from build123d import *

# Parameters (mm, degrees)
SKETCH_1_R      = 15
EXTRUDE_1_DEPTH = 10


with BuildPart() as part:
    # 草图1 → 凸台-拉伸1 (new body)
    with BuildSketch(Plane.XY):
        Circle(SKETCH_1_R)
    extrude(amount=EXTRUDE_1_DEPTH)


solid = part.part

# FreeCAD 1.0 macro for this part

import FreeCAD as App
import Part
import Sketcher
from FreeCAD import Vector

doc = App.newDocument("Part")
body = doc.addObject("PartDesign::Body", "Body")

# Sketch on XY plane
sketch1 = doc.addObject("Sketcher::SketchObject", "Sketch")
body.addObject(sketch1)
sketch1.AttachmentSupport = (doc.XY_Plane, [""])
sketch1.MapMode = "FlatFace"
sketch1.addGeometry(Part.Circle(Vector(0, 0, 0), Vector(0, 0, 1), 15), False)
sketch1.addConstraint(Sketcher.Constraint("Coincident", 0, 3, -1, 1))
sketch1.addConstraint(Sketcher.Constraint("Diameter", 0, 30.0))
pad1 = doc.addObject("PartDesign::Pad", "Pad")
body.addObject(pad1)
pad1.Profile = sketch1
pad1.Length = 10

doc.recompute()
